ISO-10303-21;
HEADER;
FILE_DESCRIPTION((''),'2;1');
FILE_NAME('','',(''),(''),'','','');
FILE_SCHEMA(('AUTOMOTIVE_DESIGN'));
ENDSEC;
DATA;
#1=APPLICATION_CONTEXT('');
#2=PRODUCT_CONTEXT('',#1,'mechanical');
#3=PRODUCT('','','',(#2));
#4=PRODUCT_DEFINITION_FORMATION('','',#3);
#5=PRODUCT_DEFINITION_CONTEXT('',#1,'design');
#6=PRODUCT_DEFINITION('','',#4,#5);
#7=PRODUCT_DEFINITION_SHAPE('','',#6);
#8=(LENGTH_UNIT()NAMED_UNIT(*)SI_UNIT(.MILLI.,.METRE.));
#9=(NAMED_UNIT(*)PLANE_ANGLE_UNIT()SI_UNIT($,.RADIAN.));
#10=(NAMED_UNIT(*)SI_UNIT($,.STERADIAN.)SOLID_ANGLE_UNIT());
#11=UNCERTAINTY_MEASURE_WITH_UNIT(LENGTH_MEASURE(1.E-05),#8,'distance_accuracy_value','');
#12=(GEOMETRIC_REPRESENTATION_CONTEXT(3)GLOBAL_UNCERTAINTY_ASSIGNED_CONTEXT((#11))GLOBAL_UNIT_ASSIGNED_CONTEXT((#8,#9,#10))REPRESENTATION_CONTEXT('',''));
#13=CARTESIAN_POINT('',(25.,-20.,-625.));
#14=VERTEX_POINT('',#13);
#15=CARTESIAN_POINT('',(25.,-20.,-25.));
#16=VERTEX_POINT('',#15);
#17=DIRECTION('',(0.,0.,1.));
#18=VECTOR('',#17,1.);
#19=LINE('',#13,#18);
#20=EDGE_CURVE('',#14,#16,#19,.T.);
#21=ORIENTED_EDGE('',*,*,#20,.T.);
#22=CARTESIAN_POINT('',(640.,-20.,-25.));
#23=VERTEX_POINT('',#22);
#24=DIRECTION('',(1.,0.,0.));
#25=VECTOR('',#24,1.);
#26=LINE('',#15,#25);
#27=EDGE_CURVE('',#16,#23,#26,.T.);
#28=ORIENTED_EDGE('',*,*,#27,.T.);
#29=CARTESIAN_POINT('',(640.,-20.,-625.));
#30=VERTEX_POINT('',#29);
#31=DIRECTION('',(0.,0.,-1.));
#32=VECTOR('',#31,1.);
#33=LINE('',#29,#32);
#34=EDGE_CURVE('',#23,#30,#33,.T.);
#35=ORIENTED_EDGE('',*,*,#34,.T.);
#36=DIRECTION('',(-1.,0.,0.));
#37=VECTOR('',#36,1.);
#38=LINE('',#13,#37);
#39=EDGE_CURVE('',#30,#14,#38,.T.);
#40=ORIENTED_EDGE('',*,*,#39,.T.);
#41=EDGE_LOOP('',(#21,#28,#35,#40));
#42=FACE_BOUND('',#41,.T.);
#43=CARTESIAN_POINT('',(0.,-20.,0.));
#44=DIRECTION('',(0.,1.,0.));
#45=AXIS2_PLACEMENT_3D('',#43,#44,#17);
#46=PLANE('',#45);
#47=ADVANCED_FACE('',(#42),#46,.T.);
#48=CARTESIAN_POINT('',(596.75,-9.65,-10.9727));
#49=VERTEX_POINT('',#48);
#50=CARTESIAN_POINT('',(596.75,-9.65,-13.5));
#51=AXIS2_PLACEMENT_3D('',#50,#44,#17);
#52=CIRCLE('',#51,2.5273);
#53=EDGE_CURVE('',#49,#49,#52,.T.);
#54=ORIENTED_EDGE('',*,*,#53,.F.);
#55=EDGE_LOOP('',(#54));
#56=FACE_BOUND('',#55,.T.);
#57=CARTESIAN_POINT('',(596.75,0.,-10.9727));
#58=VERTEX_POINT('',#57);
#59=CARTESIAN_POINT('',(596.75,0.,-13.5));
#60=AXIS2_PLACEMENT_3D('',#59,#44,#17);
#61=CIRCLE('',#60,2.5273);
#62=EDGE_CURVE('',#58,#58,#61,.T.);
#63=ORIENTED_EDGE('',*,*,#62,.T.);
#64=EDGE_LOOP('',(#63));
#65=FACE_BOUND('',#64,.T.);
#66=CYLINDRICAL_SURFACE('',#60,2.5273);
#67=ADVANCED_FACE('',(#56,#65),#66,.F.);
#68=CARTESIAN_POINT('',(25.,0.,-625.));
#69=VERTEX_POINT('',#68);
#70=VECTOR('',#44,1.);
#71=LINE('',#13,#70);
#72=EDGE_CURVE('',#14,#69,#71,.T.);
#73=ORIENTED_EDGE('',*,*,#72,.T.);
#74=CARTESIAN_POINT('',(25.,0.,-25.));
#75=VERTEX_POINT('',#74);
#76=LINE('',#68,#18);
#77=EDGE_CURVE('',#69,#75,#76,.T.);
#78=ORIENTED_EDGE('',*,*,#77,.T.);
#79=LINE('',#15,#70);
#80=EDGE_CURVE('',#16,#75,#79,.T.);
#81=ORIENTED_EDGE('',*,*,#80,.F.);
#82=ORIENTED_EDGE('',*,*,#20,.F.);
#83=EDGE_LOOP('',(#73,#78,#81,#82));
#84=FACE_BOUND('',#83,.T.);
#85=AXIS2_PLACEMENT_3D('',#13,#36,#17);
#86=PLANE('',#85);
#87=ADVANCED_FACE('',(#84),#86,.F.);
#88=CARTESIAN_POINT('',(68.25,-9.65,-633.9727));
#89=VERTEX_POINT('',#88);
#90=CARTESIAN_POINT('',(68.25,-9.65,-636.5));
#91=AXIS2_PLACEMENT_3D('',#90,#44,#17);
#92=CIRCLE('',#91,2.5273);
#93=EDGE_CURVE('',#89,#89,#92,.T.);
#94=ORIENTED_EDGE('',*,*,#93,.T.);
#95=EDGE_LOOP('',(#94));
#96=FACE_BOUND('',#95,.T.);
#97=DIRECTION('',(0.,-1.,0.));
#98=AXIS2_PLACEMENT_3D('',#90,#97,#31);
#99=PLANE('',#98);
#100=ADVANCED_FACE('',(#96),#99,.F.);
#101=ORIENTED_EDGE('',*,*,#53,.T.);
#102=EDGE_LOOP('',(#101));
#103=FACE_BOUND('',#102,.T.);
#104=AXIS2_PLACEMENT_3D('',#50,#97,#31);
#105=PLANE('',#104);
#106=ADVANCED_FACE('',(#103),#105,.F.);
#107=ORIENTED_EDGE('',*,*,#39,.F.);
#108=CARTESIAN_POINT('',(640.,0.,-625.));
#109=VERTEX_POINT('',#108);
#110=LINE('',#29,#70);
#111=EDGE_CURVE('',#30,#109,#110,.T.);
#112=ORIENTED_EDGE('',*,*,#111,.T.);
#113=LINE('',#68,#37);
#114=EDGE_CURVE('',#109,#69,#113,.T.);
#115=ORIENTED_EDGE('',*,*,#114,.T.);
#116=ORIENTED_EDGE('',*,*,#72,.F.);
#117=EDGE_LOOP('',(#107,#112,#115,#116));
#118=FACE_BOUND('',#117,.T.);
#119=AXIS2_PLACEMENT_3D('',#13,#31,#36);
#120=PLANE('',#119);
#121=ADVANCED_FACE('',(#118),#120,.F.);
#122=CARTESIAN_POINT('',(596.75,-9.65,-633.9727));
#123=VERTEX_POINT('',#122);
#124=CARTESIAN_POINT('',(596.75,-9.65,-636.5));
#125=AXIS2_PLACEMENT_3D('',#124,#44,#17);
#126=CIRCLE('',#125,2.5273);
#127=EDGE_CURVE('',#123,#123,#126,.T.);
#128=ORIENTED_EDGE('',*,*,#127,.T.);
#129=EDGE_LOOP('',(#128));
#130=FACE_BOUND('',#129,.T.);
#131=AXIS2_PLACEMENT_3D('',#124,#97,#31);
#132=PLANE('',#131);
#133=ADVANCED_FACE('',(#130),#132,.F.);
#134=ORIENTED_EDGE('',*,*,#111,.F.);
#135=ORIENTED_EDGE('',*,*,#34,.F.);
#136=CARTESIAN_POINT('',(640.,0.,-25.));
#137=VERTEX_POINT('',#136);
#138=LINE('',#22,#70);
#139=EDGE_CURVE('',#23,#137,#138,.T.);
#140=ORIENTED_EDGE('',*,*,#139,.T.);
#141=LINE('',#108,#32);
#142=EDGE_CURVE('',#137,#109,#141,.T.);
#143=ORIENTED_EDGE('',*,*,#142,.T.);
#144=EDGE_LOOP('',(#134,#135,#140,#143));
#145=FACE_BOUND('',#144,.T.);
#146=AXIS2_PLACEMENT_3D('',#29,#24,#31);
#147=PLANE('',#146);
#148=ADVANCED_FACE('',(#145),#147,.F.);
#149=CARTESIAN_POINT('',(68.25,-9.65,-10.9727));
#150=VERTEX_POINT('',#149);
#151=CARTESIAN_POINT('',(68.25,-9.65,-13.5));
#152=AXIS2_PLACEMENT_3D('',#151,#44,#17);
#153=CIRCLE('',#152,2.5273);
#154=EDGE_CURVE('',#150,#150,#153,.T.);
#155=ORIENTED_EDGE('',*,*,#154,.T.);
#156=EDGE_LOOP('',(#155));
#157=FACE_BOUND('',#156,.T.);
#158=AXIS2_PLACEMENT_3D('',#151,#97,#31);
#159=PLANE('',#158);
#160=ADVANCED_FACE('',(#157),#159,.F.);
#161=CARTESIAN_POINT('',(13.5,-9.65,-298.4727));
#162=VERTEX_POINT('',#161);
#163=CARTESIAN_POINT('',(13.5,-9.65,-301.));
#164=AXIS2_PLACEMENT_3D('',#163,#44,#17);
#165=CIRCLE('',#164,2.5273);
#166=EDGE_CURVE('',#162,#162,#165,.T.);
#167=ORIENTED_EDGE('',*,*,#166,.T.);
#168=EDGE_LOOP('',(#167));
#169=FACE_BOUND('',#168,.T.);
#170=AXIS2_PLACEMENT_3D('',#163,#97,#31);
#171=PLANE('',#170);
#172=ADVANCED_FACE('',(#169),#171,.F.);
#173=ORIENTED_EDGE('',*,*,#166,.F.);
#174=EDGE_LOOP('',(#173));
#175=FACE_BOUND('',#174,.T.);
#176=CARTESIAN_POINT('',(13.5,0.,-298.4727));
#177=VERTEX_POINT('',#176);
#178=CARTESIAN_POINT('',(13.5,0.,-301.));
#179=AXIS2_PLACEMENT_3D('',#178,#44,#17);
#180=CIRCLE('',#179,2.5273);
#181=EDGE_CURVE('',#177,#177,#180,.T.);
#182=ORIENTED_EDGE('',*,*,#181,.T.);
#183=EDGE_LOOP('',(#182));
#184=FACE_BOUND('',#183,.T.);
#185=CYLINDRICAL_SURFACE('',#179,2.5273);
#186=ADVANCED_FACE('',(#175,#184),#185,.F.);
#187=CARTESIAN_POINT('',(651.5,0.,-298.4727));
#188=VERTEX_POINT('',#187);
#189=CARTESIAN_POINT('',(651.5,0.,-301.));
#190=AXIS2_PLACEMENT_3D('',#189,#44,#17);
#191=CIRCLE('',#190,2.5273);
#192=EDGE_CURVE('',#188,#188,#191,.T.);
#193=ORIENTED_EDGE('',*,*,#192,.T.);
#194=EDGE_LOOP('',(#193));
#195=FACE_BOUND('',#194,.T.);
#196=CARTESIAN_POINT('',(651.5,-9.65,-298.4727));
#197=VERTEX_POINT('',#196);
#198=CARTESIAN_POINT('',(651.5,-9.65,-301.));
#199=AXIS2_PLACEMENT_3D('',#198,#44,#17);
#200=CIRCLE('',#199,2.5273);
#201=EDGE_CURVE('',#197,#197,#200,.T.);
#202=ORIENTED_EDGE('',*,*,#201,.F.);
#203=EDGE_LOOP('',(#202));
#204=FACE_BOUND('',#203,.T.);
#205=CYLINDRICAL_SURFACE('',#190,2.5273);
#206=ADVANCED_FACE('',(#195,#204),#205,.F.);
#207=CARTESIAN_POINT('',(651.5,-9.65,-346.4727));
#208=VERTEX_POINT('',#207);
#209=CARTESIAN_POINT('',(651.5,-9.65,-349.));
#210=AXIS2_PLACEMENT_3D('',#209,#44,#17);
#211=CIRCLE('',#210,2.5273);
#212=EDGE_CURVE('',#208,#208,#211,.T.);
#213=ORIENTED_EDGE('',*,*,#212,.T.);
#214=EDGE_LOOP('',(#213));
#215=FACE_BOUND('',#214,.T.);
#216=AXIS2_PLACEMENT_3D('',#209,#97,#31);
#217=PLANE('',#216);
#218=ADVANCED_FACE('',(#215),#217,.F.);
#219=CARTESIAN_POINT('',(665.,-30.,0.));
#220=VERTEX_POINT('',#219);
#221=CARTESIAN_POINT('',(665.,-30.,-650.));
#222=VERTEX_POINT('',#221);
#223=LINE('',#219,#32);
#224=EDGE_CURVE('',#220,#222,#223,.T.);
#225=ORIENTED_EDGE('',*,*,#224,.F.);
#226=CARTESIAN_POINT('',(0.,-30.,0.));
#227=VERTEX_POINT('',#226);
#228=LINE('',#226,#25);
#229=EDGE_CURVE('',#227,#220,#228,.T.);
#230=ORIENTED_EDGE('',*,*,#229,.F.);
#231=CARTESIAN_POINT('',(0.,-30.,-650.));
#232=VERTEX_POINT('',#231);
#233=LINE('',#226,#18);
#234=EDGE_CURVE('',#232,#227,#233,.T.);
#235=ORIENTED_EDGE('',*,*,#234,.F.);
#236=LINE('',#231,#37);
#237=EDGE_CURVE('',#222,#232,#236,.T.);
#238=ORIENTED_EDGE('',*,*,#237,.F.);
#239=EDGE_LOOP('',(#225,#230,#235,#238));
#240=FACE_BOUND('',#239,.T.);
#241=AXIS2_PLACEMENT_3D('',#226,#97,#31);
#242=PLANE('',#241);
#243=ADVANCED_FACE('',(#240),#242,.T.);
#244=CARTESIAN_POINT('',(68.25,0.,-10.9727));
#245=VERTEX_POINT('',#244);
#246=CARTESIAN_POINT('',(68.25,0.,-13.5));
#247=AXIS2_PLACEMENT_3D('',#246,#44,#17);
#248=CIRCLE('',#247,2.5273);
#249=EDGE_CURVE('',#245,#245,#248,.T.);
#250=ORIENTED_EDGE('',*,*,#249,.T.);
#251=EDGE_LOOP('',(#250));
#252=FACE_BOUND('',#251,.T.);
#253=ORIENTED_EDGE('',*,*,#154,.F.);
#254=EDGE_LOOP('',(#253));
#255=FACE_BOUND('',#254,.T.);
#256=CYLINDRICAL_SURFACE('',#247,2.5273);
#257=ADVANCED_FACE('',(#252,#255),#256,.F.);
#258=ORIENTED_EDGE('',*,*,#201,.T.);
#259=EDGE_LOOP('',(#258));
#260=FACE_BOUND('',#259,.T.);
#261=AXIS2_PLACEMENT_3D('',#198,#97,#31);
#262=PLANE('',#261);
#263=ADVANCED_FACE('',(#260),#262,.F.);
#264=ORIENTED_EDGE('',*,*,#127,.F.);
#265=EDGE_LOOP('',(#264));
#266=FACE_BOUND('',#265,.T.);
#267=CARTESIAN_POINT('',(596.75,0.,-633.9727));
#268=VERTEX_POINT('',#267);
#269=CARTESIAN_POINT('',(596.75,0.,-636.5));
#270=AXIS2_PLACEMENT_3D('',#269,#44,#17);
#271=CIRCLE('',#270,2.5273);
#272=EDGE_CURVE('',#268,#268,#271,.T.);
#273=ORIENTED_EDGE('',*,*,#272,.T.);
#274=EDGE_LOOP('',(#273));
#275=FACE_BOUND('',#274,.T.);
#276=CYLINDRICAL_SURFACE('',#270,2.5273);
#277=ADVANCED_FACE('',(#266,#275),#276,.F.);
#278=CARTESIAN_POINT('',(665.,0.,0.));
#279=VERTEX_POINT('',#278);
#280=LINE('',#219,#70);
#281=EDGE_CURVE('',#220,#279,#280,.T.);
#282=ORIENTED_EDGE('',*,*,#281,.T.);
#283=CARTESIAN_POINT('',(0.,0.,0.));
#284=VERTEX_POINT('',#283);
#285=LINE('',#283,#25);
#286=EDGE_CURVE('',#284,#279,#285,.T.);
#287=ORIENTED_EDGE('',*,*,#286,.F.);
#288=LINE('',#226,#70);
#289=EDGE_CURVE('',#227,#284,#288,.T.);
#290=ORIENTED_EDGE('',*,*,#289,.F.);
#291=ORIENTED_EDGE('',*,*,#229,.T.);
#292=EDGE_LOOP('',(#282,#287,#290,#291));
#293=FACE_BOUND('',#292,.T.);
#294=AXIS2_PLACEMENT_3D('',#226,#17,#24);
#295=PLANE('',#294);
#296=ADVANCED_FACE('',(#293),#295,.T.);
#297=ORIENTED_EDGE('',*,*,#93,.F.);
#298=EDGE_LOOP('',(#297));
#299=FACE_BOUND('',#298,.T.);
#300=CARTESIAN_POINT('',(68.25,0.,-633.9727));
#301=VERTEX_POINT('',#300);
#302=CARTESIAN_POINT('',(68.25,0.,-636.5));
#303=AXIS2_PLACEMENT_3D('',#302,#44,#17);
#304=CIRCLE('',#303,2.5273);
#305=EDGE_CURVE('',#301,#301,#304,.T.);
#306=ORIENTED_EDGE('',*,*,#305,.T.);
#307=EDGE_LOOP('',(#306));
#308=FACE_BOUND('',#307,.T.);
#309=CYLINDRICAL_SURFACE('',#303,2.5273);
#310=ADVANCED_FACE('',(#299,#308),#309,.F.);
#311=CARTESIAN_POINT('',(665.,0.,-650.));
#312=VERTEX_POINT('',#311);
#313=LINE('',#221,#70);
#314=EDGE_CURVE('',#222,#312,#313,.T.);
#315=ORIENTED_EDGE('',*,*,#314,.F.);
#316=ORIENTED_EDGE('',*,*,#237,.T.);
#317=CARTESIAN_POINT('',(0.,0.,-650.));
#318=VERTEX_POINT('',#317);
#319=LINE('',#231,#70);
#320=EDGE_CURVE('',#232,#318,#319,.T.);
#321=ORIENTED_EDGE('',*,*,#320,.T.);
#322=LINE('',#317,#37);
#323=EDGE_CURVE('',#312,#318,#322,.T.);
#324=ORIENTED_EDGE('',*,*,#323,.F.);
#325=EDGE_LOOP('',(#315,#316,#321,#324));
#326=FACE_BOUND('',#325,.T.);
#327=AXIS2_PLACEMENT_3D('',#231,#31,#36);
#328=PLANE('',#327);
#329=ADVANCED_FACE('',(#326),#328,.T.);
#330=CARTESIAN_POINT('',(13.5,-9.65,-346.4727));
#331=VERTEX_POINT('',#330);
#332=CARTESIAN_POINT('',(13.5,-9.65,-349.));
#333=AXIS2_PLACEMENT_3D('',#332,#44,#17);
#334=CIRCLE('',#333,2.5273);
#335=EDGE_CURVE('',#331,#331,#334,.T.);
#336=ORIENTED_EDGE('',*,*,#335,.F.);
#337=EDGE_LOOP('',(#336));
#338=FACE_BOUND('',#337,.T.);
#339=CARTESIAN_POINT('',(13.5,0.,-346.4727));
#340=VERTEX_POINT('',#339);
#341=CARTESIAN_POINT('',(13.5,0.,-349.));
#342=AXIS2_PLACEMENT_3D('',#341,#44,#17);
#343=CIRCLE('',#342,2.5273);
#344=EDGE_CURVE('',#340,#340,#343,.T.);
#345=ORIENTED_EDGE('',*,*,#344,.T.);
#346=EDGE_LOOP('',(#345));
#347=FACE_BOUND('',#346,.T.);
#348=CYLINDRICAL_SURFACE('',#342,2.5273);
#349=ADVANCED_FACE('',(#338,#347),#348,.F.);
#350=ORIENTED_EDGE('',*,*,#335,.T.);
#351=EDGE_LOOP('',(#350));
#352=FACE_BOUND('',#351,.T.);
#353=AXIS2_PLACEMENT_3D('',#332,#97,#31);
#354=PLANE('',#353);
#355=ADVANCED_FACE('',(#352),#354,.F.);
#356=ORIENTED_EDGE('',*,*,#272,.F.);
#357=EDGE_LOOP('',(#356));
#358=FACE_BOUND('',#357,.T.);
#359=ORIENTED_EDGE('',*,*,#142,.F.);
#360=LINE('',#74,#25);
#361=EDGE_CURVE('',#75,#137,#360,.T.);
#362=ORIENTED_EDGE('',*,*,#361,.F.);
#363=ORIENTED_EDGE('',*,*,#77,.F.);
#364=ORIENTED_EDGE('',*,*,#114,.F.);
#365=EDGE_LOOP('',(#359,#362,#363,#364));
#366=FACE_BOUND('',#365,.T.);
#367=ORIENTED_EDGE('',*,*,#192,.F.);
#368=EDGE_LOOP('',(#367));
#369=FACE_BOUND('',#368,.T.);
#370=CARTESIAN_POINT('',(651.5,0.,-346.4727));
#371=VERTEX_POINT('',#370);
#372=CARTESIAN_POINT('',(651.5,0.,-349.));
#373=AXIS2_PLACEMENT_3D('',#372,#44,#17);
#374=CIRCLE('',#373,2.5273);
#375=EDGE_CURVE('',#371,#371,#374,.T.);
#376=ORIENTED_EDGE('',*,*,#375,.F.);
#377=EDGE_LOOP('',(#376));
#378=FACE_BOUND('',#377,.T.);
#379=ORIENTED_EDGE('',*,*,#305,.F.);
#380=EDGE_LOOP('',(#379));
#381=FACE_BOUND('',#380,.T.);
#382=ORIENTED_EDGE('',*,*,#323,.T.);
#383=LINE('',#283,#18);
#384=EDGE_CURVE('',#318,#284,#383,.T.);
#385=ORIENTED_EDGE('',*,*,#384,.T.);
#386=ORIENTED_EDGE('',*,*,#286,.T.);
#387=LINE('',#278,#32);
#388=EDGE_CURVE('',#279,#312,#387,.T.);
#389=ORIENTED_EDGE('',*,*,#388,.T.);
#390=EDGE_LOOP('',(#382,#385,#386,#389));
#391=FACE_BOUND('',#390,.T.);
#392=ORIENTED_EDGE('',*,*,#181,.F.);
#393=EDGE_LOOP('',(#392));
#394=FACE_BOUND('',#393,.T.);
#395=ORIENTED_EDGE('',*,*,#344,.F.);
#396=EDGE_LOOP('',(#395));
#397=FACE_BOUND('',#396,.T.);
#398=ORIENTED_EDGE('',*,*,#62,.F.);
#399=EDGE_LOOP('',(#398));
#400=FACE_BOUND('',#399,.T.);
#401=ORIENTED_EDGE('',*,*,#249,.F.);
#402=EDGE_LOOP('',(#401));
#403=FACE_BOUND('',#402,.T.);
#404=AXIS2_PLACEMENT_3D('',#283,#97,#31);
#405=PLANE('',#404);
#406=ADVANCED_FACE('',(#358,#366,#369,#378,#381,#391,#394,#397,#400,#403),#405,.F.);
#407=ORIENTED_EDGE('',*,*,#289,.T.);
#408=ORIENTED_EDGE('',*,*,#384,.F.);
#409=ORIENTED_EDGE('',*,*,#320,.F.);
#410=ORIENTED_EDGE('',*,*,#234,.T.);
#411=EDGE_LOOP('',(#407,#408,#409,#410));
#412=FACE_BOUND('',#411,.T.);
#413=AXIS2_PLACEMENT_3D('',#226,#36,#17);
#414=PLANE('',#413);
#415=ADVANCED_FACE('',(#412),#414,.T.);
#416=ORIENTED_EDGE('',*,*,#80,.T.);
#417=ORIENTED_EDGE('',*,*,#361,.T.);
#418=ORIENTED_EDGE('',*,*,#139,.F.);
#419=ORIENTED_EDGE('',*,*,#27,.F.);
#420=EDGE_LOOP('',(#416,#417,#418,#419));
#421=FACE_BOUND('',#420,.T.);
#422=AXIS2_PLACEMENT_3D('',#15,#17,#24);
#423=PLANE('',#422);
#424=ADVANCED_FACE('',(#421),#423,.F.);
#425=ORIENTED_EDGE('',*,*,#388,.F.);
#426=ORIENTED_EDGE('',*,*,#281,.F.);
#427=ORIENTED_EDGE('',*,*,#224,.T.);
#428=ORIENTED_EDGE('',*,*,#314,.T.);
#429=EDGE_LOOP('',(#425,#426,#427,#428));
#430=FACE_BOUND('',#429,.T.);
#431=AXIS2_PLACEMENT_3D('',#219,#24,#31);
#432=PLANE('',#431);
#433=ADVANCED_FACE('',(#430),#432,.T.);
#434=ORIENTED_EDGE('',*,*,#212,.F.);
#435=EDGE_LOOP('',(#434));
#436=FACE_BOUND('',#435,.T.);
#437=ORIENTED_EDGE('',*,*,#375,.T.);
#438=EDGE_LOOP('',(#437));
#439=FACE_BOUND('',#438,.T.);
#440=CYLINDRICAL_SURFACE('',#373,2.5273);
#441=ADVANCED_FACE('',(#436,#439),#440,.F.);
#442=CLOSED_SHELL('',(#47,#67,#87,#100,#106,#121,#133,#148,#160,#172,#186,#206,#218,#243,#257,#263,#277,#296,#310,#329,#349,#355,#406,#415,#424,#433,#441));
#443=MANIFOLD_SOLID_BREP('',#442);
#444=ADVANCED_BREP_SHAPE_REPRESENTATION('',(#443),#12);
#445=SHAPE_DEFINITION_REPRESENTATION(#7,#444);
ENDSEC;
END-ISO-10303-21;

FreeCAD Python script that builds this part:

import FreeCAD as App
import Part
import Sketcher

V = App.Vector
Q = App.Units.Quantity


def add_polygon(sketch, points):
    """Adds a closed chain of lines whose ends are joined by coincident constraints."""
    first, n = sketch.GeometryCount, len(points)
    for a, b in zip(points, points[1:] + points[:1]):
        sketch.addGeometry(Part.LineSegment(App.Vector(*a, 0), App.Vector(*b, 0)), False)
    for i in range(n):
        sketch.addConstraint(Sketcher.Constraint("Coincident", first + i, 2, first + (i + 1) % n, 1))

doc = App.newDocument("Part")
body = doc.addObject("PartDesign::Body", "Body")

# Sketch on XZ plane
sketch1 = body.newObject("Sketcher::SketchObject", "Sketch")
sketch1.AttachmentSupport = (doc.getObject("XZ_Plane"), [""])
sketch1.MapMode = "FlatFace"
add_polygon(sketch1, [(0, -650), (0, 0), (665, 0), (665, -650)])  # lines 0-3
sketch1.addConstraint(Sketcher.Constraint("Vertical", 0))
sketch1.addConstraint(Sketcher.Constraint("Horizontal", 1))
sketch1.addConstraint(Sketcher.Constraint("Vertical", 2))
sketch1.addConstraint(Sketcher.Constraint("Horizontal", 3))
sketch1.addConstraint(Sketcher.Constraint("Coincident", 0, 2, -1, 1))
sketch1.addConstraint(Sketcher.Constraint("DistanceX", 1, 1, 1, 2, Q("665 mm")))
sketch1.addConstraint(Sketcher.Constraint("DistanceY", 0, 1, 0, 2, Q("650 mm")))
pad1 = body.newObject("PartDesign::Pad", "Pad")
pad1.Profile = sketch1
pad1.Length = 30

# Sketch on XZ plane
sketch2 = body.newObject("Sketcher::SketchObject", "Sketch001")
sketch2.AttachmentSupport = (doc.getObject("XZ_Plane"), [""])
sketch2.MapMode = "FlatFace"
sketch2.addGeometry(Part.Circle(V(68.2, -13.5, 0), V(0, 0, 1), 2.5), False)
sketch2.addGeometry(Part.Circle(V(13.5, -301, 0), V(0, 0, 1), 2.5), False)
sketch2.addGeometry(Part.Circle(V(596.8, -13.5, 0), V(0, 0, 1), 2.5), False)
sketch2.addGeometry(Part.Circle(V(651.5, -301, 0), V(0, 0, 1), 2.5), False)
sketch2.addGeometry(Part.Circle(V(651.5, -349, 0), V(0, 0, 1), 2.5), False)
sketch2.addGeometry(Part.Circle(V(596.8, -636.5, 0), V(0, 0, 1), 2.5), False)
sketch2.addGeometry(Part.Circle(V(68.2, -636.5, 0), V(0, 0, 1), 2.5), False)
sketch2.addGeometry(Part.Circle(V(13.5, -349, 0), V(0, 0, 1), 2.5), False)
sketch2.addConstraint(Sketcher.Constraint("Equal", 0, 1))
sketch2.addConstraint(Sketcher.Constraint("Equal", 1, 2))
sketch2.addConstraint(Sketcher.Constraint("Equal", 2, 3))
sketch2.addConstraint(Sketcher.Constraint("Equal", 3, 4))
sketch2.addConstraint(Sketcher.Constraint("Equal", 4, 5))
sketch2.addConstraint(Sketcher.Constraint("Equal", 5, 6))
sketch2.addConstraint(Sketcher.Constraint("Equal", 6, 7))
sketch2.addConstraint(Sketcher.Constraint("Horizontal", 0, 3, 2, 3))
sketch2.addConstraint(Sketcher.Constraint("Horizontal", 1, 3, 3, 3))
sketch2.addConstraint(Sketcher.Constraint("Horizontal", 5, 3, 6, 3))
sketch2.addConstraint(Sketcher.Constraint("Horizontal", 4, 3, 7, 3))
sketch2.addConstraint(Sketcher.Constraint("Vertical", 3, 3, 4, 3))
sketch2.addConstraint(Sketcher.Constraint("Vertical", 2, 3, 5, 3))
sketch2.addConstraint(Sketcher.Constraint("Vertical", 0, 3, 6, 3))
sketch2.addConstraint(Sketcher.Constraint("Vertical", 1, 3, 7, 3))
sketch2.addConstraint(Sketcher.Constraint("DistanceY", 1, 3, -1, 1, Q("301 mm")))
sketch2.addConstraint(Sketcher.Constraint("DistanceY", 4, 3, -1, 1, Q("349 mm")))
sketch2.addConstraint(Sketcher.Constraint("DistanceX", 1, 3, 3, 3, Q("638 mm")))
sketch2.addConstraint(Sketcher.Constraint("DistanceY", 5, 3, 2, 3, Q("623 mm")))
sketch2.addConstraint(Sketcher.Constraint("Diameter", 0, Q("5.0546 mm")))
sketch2.addConstraint(Sketcher.Constraint("DistanceY", 0, 3, -1, 1, Q("13.5 mm")))
sketch2.addConstraint(Sketcher.Constraint("DistanceX", -1, 1, 1, 3, Q("13.5 mm")))
sketch2.addConstraint(Sketcher.Constraint("DistanceX", 0, 3, 2, 3, Q("528.5 mm")))
sketch2.addConstraint(Sketcher.Constraint("DistanceX", -1, 1, 0, 3, Q("68.25 mm")))
doc.recompute()
hole = body.newObject("PartDesign::Hole", "Hole")
hole.Profile = sketch2
hole.ThreadType = "None"
hole.Diameter = 5.0546
hole.DepthType = "Dimension"
hole.Depth = 9.65
hole.DrillPoint = "Flat"
hole.Reversed = True

# Sketch on XZ plane
sketch3 = body.newObject("Sketcher::SketchObject", "Sketch002")
sketch3.AttachmentSupport = (doc.getObject("XZ_Plane"), [""])
sketch3.MapMode = "FlatFace"
add_polygon(sketch3, [(25, -625), (25, -25), (640, -25), (640, -625)])  # lines 0-3
sketch3.addConstraint(Sketcher.Constraint("Vertical", 0))
sketch3.addConstraint(Sketcher.Constraint("Horizontal", 1))
sketch3.addConstraint(Sketcher.Constraint("Vertical", 2))
sketch3.addConstraint(Sketcher.Constraint("Horizontal", 3))
sketch3.addConstraint(Sketcher.Constraint("DistanceX", 1, 1, 1, 2, Q("615 mm")))
sketch3.addConstraint(Sketcher.Constraint("DistanceY", 0, 1, 0, 2, Q("600 mm")))
sketch3.addConstraint(Sketcher.Constraint("DistanceX", -1, 1, 0, 2, Q("25 mm")))
sketch3.addConstraint(Sketcher.Constraint("DistanceY", 0, 2, -1, 1, Q("25 mm")))
pocket1 = body.newObject("PartDesign::Pocket", "Pocket")
pocket1.Profile = sketch3
pocket1.Length = 20
pocket1.Reversed = True

doc.recompute()
